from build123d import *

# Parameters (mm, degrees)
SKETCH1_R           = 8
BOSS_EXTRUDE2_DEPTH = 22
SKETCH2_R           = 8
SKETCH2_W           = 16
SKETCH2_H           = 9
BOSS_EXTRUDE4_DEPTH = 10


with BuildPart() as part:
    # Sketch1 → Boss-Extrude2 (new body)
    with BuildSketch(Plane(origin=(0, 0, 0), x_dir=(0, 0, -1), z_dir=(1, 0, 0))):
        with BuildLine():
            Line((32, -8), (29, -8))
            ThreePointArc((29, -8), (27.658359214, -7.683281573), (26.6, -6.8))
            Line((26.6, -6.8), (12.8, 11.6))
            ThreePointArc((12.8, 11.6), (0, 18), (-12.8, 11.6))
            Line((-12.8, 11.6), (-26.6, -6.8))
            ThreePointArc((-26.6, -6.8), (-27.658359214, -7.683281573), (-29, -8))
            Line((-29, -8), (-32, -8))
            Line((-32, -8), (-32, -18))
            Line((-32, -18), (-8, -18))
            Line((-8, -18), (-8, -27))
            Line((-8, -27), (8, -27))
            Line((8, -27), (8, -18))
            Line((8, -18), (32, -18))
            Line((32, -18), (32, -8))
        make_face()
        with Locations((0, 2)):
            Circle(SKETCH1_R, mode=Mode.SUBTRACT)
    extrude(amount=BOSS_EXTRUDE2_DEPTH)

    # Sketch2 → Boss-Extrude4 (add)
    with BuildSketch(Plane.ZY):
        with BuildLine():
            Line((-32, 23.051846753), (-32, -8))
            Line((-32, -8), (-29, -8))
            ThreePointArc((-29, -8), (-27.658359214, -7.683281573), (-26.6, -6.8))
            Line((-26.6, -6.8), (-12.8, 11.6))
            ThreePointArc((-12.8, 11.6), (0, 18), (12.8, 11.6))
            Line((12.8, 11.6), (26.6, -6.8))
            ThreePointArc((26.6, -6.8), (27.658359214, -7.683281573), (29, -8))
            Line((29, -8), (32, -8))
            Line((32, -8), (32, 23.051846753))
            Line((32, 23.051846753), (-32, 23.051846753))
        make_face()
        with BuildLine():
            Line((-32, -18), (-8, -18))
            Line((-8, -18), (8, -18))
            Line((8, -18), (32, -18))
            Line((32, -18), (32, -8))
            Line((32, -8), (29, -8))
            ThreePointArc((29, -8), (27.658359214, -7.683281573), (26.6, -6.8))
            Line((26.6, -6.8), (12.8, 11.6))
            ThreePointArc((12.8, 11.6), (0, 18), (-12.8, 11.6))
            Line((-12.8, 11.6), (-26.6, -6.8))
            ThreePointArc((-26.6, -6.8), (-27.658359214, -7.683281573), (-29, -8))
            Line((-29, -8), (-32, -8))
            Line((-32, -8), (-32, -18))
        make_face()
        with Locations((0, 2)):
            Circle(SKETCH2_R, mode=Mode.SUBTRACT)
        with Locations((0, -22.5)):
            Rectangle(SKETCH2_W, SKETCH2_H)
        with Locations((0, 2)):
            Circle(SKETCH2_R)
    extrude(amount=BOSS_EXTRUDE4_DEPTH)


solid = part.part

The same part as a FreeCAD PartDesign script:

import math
import FreeCAD as App
import Part
import Sketcher

V = App.Vector

doc = App.newDocument("Part")
body = doc.addObject("PartDesign::Body", "Body")

# Sketch on YZ plane
sketch1 = doc.addObject("Sketcher::SketchObject", "Sketch")
body.addObject(sketch1)
sketch1.AttachmentSupport = (doc.YZ_Plane, [""])
sketch1.MapMode = "FlatFace"
sketch1.addGeometry([
    Part.LineSegment(V(-8, -32, 0), V(-8, -29, 0)),  # 0
    Part.ArcOfCircle(Part.Circle(V(-5, -29, 0), V(0, 0, 1), 3), math.radians(127), math.radians(180)),  # 1
    Part.LineSegment(V(-6.8, -26.6, 0), V(11.6, -12.8, 0)),  # 2
    Part.ArcOfCircle(Part.Circle(V(2, 0, 0), V(0, 0, 1), 16), math.radians(-53), math.radians(53)),  # 3
    Part.LineSegment(V(11.6, 12.8, 0), V(-6.8, 26.6, 0)),  # 4
    Part.ArcOfCircle(Part.Circle(V(-5, 29, 0), V(0, 0, 1), 3), math.radians(-180), math.radians(-127)),  # 5
    Part.LineSegment(V(-8, 29, 0), V(-8, 32, 0)),  # 6
    Part.LineSegment(V(-8, 32, 0), V(-18, 32, 0)),  # 7
    Part.LineSegment(V(-18, 32, 0), V(-18, 8, 0)),  # 8
    Part.LineSegment(V(-18, 8, 0), V(-27, 8, 0)),  # 9
    Part.LineSegment(V(-27, 8, 0), V(-27, -8, 0)),  # 10
    Part.LineSegment(V(-27, -8, 0), V(-18, -8, 0)),  # 11
    Part.LineSegment(V(-18, -8, 0), V(-18, -32, 0)),  # 12
    Part.LineSegment(V(-18, -32, 0), V(-8, -32, 0)),  # 13
    Part.Circle(V(2, 0, 0), V(0, 0, 1), 8),  # 14
], False)
sketch1.addConstraint([
    Sketcher.Constraint("Tangent", 0, 2, 1, 2),
    Sketcher.Constraint("Tangent", 1, 1, 2, 1),
    Sketcher.Constraint("Tangent", 2, 2, 3, 1),
    Sketcher.Constraint("Tangent", 3, 2, 4, 1),
    Sketcher.Constraint("Tangent", 4, 2, 5, 2),
    Sketcher.Constraint("Tangent", 5, 1, 6, 1),
    Sketcher.Constraint("Coincident", 6, 2, 7, 1),
    Sketcher.Constraint("Coincident", 7, 2, 8, 1),
    Sketcher.Constraint("Coincident", 8, 2, 9, 1),
    Sketcher.Constraint("Coincident", 9, 2, 10, 1),
    Sketcher.Constraint("Coincident", 10, 2, 11, 1),
    Sketcher.Constraint("Coincident", 11, 2, 12, 1),
    Sketcher.Constraint("Coincident", 12, 2, 13, 1),
    Sketcher.Constraint("Coincident", 13, 2, 0, 1),
    Sketcher.Constraint("Vertical", 0),
    Sketcher.Constraint("Vertical", 6),
    Sketcher.Constraint("Horizontal", 7),
    Sketcher.Constraint("Vertical", 8),
    Sketcher.Constraint("Horizontal", 9),
    Sketcher.Constraint("Vertical", 10),
    Sketcher.Constraint("Horizontal", 11),
    Sketcher.Constraint("Vertical", 12),
    Sketcher.Constraint("Horizontal", 13),
    Sketcher.Constraint("Coincident", 14, 3, 3, 3),
    Sketcher.Constraint("Equal", 1, 5),
    Sketcher.Constraint("Symmetric", 1, 3, 5, 3, -1),
    Sketcher.Constraint("Symmetric", 8, 2, 11, 2, -1),
    Sketcher.Constraint("PointOnObject", 3, 3, -1),
    Sketcher.Constraint("Equal", 0, 6),
    Sketcher.Constraint("Diameter", 14, 16.0),
    Sketcher.Constraint("Radius", 1, 3.0),
    Sketcher.Constraint("Radius", 3, 16.0),
    Sketcher.Constraint("DistanceX", 7, 2, 7, 1, 10.0),
    Sketcher.Constraint("DistanceX", 9, 2, 9, 1, 9.0),
    Sketcher.Constraint("DistanceY", 0, 1, 0, 2, 3.0),
    Sketcher.Constraint("DistanceY", 8, 2, 8, 1, 24.0),
    Sketcher.Constraint("DistanceY", 10, 2, 10, 1, 16.0),
    Sketcher.Constraint("Distance", 2, 23.0),
    Sketcher.Constraint("DistanceX", 1, 3, -1, 1, 5.0),
])
pad1 = doc.addObject("PartDesign::Pad", "Pad")
body.addObject(pad1)
pad1.Profile = sketch1
pad1.Length = 22

# Sketch on YZ plane
sketch2 = doc.addObject("Sketcher::SketchObject", "Sketch001")
body.addObject(sketch2)
sketch2.AttachmentSupport = (doc.YZ_Plane, [""])
sketch2.MapMode = "FlatFace"
sketch2.addGeometry([
    Part.LineSegment(V(23, -32, 0), V(-18, -32, 0)),  # 0
    Part.LineSegment(V(-18, -32, 0), V(-18, -8, 0)),  # 1
    Part.LineSegment(V(-18, -8, 0), V(-27, -8, 0)),  # 2
    Part.LineSegment(V(-27, -8, 0), V(-27, 8, 0)),  # 3
    Part.LineSegment(V(-27, 8, 0), V(-18, 8, 0)),  # 4
    Part.LineSegment(V(-18, 8, 0), V(-18, 32, 0)),  # 5
    Part.LineSegment(V(-18, 32, 0), V(23, 32, 0)),  # 6
    Part.LineSegment(V(23, 32, 0), V(23, -32, 0)),  # 7
], False)
sketch2.addConstraint([
    Sketcher.Constraint("Coincident", 0, 2, 1, 1),
    Sketcher.Constraint("Coincident", 1, 2, 2, 1),
    Sketcher.Constraint("Coincident", 2, 2, 3, 1),
    Sketcher.Constraint("Coincident", 3, 2, 4, 1),
    Sketcher.Constraint("Coincident", 4, 2, 5, 1),
    Sketcher.Constraint("Coincident", 5, 2, 6, 1),
    Sketcher.Constraint("Coincident", 6, 2, 7, 1),
    Sketcher.Constraint("Coincident", 7, 2, 0, 1),
    Sketcher.Constraint("Horizontal", 0),
    Sketcher.Constraint("Vertical", 1),
    Sketcher.Constraint("Horizontal", 2),
    Sketcher.Constraint("Vertical", 3),
    Sketcher.Constraint("Horizontal", 4),
    Sketcher.Constraint("Vertical", 5),
    Sketcher.Constraint("Horizontal", 6),
    Sketcher.Constraint("Vertical", 7),
    Sketcher.Constraint("Symmetric", 1, 2, 4, 2, -1),
    Sketcher.Constraint("Equal", 1, 5),
    Sketcher.Constraint("DistanceX", 2, 2, 2, 1, 9.0),
    Sketcher.Constraint("DistanceY", 1, 1, 1, 2, 24.0),
    Sketcher.Constraint("DistanceY", 3, 1, 3, 2, 16.0),
    Sketcher.Constraint("DistanceX", 0, 2, -1, 1, 18.0),
    Sketcher.Constraint("DistanceX", 0, 2, 0, 1, 41.051847),
])
pad2 = doc.addObject("PartDesign::Pad", "Pad001")
body.addObject(pad2)
pad2.Profile = sketch2
pad2.Length = 10
pad2.Reversed = True

doc.recompute()
